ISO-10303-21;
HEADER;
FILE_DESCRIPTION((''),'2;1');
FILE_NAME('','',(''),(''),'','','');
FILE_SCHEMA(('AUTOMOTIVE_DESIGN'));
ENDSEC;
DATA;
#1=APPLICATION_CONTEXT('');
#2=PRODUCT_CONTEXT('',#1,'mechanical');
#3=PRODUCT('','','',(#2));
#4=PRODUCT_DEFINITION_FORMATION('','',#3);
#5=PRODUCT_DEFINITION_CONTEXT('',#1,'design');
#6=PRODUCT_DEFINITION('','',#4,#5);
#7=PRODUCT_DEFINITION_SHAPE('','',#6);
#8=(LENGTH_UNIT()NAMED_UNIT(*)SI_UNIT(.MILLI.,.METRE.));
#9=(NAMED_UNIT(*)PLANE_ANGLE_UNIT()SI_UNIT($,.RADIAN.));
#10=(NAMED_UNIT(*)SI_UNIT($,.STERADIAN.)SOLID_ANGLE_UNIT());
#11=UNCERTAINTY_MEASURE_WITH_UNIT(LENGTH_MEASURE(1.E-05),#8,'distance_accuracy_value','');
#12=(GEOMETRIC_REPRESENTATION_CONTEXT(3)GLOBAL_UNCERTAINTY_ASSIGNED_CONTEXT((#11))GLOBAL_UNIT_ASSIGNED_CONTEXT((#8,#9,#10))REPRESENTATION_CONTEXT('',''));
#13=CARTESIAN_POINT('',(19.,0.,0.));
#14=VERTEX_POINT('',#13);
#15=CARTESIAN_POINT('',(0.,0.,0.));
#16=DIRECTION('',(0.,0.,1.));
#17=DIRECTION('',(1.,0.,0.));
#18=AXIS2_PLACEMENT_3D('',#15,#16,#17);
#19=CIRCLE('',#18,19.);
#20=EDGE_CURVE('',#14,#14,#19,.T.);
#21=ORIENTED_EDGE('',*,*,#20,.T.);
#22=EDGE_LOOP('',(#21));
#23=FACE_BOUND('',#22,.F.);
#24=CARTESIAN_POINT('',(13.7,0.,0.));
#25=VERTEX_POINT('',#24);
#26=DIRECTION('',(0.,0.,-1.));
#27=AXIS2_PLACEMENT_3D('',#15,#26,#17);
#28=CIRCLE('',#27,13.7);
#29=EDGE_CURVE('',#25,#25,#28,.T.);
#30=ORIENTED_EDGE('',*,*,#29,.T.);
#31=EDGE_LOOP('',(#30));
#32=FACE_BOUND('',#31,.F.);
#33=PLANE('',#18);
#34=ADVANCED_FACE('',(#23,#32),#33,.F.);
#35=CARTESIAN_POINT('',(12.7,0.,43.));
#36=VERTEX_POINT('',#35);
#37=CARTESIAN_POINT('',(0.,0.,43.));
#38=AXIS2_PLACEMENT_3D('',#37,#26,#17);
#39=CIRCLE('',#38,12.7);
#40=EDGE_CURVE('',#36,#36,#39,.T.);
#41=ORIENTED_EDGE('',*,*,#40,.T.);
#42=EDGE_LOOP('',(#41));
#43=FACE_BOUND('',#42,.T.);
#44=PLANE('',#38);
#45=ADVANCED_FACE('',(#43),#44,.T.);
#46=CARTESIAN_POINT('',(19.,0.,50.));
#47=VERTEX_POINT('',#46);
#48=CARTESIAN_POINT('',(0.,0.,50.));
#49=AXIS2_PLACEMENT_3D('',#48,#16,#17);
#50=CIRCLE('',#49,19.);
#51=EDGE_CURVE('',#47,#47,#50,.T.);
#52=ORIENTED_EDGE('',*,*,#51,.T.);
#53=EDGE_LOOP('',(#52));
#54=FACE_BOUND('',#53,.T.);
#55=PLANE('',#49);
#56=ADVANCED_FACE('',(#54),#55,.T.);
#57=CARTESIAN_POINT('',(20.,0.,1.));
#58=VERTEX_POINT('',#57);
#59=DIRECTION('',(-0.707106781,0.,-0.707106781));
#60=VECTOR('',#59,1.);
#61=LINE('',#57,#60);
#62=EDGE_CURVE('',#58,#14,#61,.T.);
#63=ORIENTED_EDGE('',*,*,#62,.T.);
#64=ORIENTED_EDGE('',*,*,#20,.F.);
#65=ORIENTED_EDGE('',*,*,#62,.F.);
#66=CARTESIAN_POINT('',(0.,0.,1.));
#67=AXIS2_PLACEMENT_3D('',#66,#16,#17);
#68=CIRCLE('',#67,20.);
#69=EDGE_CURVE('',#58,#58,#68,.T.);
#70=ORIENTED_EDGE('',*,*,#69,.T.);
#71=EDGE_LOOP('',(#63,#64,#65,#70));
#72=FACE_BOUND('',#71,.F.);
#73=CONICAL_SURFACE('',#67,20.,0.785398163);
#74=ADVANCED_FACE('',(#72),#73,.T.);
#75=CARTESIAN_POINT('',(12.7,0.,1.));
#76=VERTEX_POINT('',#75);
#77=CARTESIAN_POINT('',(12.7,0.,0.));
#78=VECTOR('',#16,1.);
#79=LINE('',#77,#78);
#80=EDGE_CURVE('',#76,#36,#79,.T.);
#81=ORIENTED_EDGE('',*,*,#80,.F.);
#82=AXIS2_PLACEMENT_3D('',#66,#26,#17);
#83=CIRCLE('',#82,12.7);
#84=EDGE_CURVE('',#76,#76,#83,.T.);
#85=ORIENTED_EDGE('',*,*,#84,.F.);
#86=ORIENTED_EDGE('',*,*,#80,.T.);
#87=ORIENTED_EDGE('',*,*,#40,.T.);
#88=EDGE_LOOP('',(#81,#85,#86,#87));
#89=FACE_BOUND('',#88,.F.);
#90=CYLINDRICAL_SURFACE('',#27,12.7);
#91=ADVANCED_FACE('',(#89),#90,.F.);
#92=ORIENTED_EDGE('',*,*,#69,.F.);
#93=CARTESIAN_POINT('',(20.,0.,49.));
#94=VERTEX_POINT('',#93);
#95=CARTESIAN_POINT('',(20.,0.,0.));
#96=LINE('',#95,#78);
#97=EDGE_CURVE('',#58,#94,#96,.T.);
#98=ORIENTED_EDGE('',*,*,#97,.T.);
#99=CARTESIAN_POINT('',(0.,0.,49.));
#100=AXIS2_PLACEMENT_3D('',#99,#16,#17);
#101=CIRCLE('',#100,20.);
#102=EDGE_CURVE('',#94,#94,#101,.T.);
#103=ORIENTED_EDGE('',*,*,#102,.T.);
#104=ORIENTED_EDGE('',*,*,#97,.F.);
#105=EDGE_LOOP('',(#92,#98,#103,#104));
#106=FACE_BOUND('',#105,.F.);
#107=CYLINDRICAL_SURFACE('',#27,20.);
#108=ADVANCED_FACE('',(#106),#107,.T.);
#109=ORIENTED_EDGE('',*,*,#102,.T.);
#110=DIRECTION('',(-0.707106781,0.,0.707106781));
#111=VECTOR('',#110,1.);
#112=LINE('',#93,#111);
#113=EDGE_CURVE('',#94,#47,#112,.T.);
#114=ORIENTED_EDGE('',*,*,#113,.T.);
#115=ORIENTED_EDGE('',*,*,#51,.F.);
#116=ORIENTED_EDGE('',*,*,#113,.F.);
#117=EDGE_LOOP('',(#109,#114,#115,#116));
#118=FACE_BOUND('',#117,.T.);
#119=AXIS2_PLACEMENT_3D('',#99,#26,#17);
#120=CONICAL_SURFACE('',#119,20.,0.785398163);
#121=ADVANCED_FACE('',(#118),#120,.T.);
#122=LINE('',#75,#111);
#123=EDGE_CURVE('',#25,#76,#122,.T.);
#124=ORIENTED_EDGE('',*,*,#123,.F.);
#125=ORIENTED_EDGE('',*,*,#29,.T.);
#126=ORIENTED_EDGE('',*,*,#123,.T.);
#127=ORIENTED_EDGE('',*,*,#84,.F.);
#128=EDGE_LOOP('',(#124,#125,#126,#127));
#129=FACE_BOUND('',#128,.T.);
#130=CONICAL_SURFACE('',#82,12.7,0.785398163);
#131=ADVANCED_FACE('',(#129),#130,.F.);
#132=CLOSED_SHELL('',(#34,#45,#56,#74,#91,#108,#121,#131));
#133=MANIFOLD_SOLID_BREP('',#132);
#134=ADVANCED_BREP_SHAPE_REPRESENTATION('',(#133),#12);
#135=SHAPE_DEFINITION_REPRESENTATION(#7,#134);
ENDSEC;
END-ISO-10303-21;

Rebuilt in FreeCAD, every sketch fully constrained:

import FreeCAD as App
import Part
import Sketcher
from FreeCAD import Vector
Q = App.Units.Quantity


def edges_at(feature, points):
    """Names of the edges that pass closest to the given points."""
    edges = feature.Shape.Edges
    near = lambda p: min(range(len(edges)), key=lambda i: edges[i].distToShape(Part.Vertex(*p))[0])
    return sorted({f"Edge{near(p) + 1}" for p in points})

doc = App.newDocument("Part")
params = doc.addObject("Spreadsheet::Sheet", "Params")
for row, (alias, value) in enumerate([
    ("sketch1_diameter", "40 mm"),
    ("pad1_length", "50 mm"),
    ("sketch2_diameter", "25.4 mm"),
    ("pocket1_length", "43 mm"),
    ("chamfer_size", "1 mm"),
], start=1):
    params.set(f"A{row}", alias)
    params.set(f"B{row}", "=" + value)
    params.setAlias(f"B{row}", alias)

body = doc.addObject("PartDesign::Body", "Body")

# Sketch on XY plane
sketch1 = doc.addObject("Sketcher::SketchObject", "Sketch")
body.addObject(sketch1)
sketch1.AttachmentSupport = (doc.XY_Plane, [""])
sketch1.MapMode = "FlatFace"
sketch1.addGeometry(Part.Circle(Vector(0, 0, 0), Vector(0, 0, 1), 20), False)
sketch1.addConstraint([
    Sketcher.Constraint("Coincident", 0, 3, -1, 1),
    Sketcher.Constraint("Diameter", 0, Q("40 mm")),
])
sketch1.setExpression("Constraints[1]", "Params.sketch1_diameter")
pad1 = doc.addObject("PartDesign::Pad", "Pad")
body.addObject(pad1)
pad1.Profile = sketch1
pad1.setExpression("Length", "Params.pad1_length")

# Sketch on XY plane
sketch2 = doc.addObject("Sketcher::SketchObject", "Sketch001")
body.addObject(sketch2)
sketch2.AttachmentSupport = (doc.XY_Plane, [""])
sketch2.MapMode = "FlatFace"
sketch2.addGeometry(Part.Circle(Vector(0, 0, 0), Vector(0, 0, 1), 12.7), False)
sketch2.addConstraint([
    Sketcher.Constraint("Coincident", 0, 3, -1, 1),
    Sketcher.Constraint("Diameter", 0, Q("25.4 mm")),
])
sketch2.setExpression("Constraints[1]", "Params.sketch2_diameter")
pocket1 = doc.addObject("PartDesign::Pocket", "Pocket")
body.addObject(pocket1)
pocket1.Profile = sketch2
pocket1.setExpression("Length", "Params.pocket1_length")
pocket1.Reversed = True
doc.recompute()

chamfer = doc.addObject("PartDesign::Chamfer", "Chamfer")
body.addObject(chamfer)
chamfer.Base = (pocket1, edges_at(pocket1, [(-12.7, 0, 0), (-20, 0, 0), (-20, 0, 50)]))
chamfer.setExpression("Size", "Params.chamfer_size")

doc.recompute()
